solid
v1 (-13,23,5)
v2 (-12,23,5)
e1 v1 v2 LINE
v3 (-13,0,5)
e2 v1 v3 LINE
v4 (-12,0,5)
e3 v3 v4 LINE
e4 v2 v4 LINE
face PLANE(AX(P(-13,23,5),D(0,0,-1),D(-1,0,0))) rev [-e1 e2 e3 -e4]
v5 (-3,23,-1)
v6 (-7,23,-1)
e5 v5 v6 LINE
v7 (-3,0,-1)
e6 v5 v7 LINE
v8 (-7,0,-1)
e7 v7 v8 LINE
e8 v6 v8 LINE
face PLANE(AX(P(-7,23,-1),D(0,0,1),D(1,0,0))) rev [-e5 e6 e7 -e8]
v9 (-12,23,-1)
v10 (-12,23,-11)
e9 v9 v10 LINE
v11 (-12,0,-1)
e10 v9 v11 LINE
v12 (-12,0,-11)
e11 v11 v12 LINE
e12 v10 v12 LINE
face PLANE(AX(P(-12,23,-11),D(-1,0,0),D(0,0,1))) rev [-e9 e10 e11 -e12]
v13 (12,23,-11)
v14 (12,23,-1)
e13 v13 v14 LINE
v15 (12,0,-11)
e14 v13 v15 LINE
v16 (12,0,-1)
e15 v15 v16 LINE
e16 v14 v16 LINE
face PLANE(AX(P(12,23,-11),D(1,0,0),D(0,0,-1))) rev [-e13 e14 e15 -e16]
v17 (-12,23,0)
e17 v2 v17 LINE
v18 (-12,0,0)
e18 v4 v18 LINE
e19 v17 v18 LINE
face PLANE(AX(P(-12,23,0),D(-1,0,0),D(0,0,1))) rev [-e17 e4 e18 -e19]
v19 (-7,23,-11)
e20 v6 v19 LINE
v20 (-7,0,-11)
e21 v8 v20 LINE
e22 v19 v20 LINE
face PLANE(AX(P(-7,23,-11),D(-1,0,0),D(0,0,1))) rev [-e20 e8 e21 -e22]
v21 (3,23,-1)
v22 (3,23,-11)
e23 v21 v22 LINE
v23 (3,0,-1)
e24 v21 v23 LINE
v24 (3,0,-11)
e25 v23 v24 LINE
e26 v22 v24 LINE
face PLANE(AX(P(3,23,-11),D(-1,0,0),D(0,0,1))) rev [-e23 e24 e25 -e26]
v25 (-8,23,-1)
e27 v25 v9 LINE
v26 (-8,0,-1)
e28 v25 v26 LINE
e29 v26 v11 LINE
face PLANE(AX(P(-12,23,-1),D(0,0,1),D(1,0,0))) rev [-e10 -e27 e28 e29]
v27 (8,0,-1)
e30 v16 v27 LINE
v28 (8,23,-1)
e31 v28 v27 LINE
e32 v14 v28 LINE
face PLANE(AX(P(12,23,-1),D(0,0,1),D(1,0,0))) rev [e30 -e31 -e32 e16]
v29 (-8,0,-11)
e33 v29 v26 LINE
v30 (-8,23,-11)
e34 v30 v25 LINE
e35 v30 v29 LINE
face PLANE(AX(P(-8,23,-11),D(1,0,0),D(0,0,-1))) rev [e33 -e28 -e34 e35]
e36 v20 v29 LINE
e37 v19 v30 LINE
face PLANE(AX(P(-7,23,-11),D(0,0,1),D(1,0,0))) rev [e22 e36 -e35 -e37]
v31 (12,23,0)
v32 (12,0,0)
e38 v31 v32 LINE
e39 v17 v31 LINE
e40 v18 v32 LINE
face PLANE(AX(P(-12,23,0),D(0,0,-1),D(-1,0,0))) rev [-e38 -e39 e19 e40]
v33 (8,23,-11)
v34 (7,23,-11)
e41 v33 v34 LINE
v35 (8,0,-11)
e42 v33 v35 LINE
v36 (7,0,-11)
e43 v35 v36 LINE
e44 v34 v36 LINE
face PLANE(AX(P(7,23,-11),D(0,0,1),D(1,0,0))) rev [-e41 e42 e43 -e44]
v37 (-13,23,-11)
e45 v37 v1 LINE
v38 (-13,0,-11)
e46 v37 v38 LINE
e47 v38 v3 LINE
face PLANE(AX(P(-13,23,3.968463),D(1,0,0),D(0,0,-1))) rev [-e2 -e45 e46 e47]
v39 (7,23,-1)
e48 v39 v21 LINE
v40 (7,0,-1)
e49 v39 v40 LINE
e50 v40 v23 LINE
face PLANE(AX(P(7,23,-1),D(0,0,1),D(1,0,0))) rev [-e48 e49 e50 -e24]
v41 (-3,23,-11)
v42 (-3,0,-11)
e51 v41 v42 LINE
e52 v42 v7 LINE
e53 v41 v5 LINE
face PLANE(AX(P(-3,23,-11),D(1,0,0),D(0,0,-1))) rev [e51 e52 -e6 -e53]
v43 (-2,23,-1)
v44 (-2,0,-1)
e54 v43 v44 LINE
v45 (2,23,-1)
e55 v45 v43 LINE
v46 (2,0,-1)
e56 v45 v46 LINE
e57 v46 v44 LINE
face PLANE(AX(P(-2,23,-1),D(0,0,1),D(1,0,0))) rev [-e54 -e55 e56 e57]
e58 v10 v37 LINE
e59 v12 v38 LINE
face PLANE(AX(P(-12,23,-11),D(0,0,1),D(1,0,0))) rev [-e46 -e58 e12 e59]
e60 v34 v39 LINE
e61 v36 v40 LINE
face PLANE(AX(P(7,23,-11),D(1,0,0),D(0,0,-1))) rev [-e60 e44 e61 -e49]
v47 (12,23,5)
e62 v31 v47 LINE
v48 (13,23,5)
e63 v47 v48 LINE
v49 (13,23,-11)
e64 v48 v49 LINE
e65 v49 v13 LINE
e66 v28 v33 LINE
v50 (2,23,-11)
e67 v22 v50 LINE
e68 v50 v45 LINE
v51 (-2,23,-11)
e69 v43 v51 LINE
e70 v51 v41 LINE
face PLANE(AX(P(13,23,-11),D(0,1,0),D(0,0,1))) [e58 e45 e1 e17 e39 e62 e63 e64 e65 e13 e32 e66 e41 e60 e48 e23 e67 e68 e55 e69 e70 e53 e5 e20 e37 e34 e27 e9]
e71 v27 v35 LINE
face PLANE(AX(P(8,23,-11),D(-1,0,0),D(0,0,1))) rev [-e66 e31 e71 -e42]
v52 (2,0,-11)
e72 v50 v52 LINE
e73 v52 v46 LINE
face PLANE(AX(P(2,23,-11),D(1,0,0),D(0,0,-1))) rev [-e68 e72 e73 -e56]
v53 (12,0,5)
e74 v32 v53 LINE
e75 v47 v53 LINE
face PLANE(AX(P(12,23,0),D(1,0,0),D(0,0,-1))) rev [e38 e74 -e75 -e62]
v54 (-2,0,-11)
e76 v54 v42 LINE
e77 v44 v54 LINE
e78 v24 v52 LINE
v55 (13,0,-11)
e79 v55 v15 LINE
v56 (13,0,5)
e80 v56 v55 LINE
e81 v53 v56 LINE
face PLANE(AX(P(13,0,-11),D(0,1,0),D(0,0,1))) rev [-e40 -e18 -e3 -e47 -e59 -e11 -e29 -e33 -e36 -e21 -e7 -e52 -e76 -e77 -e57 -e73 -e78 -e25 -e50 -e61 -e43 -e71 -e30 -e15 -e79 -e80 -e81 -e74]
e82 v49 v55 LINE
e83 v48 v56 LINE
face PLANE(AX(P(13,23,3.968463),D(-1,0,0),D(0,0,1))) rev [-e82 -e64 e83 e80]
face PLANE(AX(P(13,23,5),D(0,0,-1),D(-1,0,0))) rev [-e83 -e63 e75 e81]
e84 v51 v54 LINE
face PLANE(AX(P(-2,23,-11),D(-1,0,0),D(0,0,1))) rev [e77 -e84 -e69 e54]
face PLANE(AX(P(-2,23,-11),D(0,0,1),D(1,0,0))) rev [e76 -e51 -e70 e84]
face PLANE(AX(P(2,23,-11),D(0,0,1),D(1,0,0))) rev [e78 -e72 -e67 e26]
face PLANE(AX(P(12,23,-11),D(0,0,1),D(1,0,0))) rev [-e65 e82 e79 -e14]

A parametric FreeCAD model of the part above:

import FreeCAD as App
import Part
import Sketcher
Q = App.Units.Quantity


def add_polygon(sketch, points):
    """Adds a closed chain of lines whose ends are joined by coincident constraints."""
    first, n = sketch.GeometryCount, len(points)
    for a, b in zip(points, points[1:] + points[:1]):
        sketch.addGeometry(Part.LineSegment(App.Vector(*a, 0), App.Vector(*b, 0)), False)
    for i in range(n):
        sketch.addConstraint(Sketcher.Constraint("Coincident", first + i, 2, first + (i + 1) % n, 1))

doc = App.newDocument("Part")
params = doc.addObject("Spreadsheet::Sheet", "Params")
for row, (alias, value) in enumerate([
    ("sketch1_width", "1 mm"),
    ("sketch1_width2", "4 mm"),
    ("sketch1_height", "10 mm"),
    ("sketch1_height2", "16 mm"),
    ("sketch1_height3", "5 mm"),
    ("pad1_length", "23 mm"),
], start=1):
    params.set(f"A{row}", alias)
    params.set(f"B{row}", "=" + value)
    params.setAlias(f"B{row}", alias)

body = doc.addObject("PartDesign::Body", "Body")

# Sketch on XZ plane
sketch1 = doc.addObject("Sketcher::SketchObject", "Sketch")
body.addObject(sketch1)
sketch1.AttachmentSupport = (doc.XZ_Plane, [""])
sketch1.MapMode = "FlatFace"
add_polygon(sketch1, [(8, -11), (7, -11), (7, -1), (3, -1), (3, -11), (2, -11), (2, -1), (-2, -1), (-2, -11), (-3, -11), (-3, -1), (-7, -1), (-7, -11), (-8, -11), (-8, -1), (-12, -1), (-12, -11), (-13, -11), (-13, 5), (-12, 5), (-12, 0), (12, 0), (12, 5), (13, 5), (13, -11), (12, -11), (12, -1), (8, -1)])  # lines 0-27
sketch1.addConstraint([
    Sketcher.Constraint("Horizontal", 0),
    Sketcher.Constraint("Vertical", 1),
    Sketcher.Constraint("Horizontal", 2),
    Sketcher.Constraint("Vertical", 3),
    Sketcher.Constraint("Horizontal", 4),
    Sketcher.Constraint("Vertical", 5),
    Sketcher.Constraint("Horizontal", 6),
    Sketcher.Constraint("Vertical", 7),
    Sketcher.Constraint("Horizontal", 8),
    Sketcher.Constraint("Vertical", 9),
    Sketcher.Constraint("Horizontal", 10),
    Sketcher.Constraint("Vertical", 11),
    Sketcher.Constraint("Horizontal", 12),
    Sketcher.Constraint("Vertical", 13),
    Sketcher.Constraint("Horizontal", 14),
    Sketcher.Constraint("Vertical", 15),
    Sketcher.Constraint("Horizontal", 16),
    Sketcher.Constraint("Vertical", 17),
    Sketcher.Constraint("Horizontal", 18),
    Sketcher.Constraint("Vertical", 19),
    Sketcher.Constraint("Horizontal", 20),
    Sketcher.Constraint("Vertical", 21),
    Sketcher.Constraint("Horizontal", 22),
    Sketcher.Constraint("Vertical", 23),
    Sketcher.Constraint("Horizontal", 24),
    Sketcher.Constraint("Vertical", 25),
    Sketcher.Constraint("Horizontal", 26),
    Sketcher.Constraint("Vertical", 27),
    Sketcher.Constraint("Symmetric", 19, 2, 20, 2, -1, 1),
    Sketcher.Constraint("Symmetric", 4, 2, 7, 2, -2),
    Sketcher.Constraint("Symmetric", 2, 2, 9, 2, -2),
    Sketcher.Constraint("Symmetric", 0, 2, 11, 2, -2),
    Sketcher.Constraint("Symmetric", 17, 2, 22, 2, -2),
    Sketcher.Constraint("Symmetric", 15, 2, 24, 2, -2),
    Sketcher.Constraint("Symmetric", 13, 2, 26, 2, -2),
    Sketcher.Constraint("Horizontal", 0, 2, 3, 2),
    Sketcher.Constraint("Horizontal", 2, 2, 5, 2),
    Sketcher.Constraint("Horizontal", 10, 2, 13, 2),
    Sketcher.Constraint("Horizontal", 12, 2, 15, 2),
    Sketcher.Constraint("Vertical", 15, 2, 18, 2),
    Sketcher.Constraint("Equal", 0, 4),
    Sketcher.Constraint("Equal", 2, 6),
    Sketcher.Constraint("Equal", 10, 14),
    Sketcher.Constraint("Equal", 12, 16),
    Sketcher.Constraint("DistanceX", 0, 2, 0, 1, Q("1 mm")),
    Sketcher.Constraint("DistanceX", 2, 2, 2, 1, Q("4 mm")),
    Sketcher.Constraint("DistanceY", 1, 1, 1, 2, Q("10 mm")),
    Sketcher.Constraint("DistanceY", 17, 1, 17, 2, Q("16 mm")),
    Sketcher.Constraint("DistanceY", 19, 2, 19, 1, Q("5 mm")),
])
sketch1.setExpression("Constraints[72]", "Params.sketch1_width")
sketch1.setExpression("Constraints[73]", "Params.sketch1_width2")
sketch1.setExpression("Constraints[74]", "Params.sketch1_height")
sketch1.setExpression("Constraints[75]", "Params.sketch1_height2")
sketch1.setExpression("Constraints[76]", "Params.sketch1_height3")
pad1 = doc.addObject("PartDesign::Pad", "Pad")
body.addObject(pad1)
pad1.Profile = sketch1
pad1.setExpression("Length", "Params.pad1_length")
pad1.Reversed = True

doc.recompute()
